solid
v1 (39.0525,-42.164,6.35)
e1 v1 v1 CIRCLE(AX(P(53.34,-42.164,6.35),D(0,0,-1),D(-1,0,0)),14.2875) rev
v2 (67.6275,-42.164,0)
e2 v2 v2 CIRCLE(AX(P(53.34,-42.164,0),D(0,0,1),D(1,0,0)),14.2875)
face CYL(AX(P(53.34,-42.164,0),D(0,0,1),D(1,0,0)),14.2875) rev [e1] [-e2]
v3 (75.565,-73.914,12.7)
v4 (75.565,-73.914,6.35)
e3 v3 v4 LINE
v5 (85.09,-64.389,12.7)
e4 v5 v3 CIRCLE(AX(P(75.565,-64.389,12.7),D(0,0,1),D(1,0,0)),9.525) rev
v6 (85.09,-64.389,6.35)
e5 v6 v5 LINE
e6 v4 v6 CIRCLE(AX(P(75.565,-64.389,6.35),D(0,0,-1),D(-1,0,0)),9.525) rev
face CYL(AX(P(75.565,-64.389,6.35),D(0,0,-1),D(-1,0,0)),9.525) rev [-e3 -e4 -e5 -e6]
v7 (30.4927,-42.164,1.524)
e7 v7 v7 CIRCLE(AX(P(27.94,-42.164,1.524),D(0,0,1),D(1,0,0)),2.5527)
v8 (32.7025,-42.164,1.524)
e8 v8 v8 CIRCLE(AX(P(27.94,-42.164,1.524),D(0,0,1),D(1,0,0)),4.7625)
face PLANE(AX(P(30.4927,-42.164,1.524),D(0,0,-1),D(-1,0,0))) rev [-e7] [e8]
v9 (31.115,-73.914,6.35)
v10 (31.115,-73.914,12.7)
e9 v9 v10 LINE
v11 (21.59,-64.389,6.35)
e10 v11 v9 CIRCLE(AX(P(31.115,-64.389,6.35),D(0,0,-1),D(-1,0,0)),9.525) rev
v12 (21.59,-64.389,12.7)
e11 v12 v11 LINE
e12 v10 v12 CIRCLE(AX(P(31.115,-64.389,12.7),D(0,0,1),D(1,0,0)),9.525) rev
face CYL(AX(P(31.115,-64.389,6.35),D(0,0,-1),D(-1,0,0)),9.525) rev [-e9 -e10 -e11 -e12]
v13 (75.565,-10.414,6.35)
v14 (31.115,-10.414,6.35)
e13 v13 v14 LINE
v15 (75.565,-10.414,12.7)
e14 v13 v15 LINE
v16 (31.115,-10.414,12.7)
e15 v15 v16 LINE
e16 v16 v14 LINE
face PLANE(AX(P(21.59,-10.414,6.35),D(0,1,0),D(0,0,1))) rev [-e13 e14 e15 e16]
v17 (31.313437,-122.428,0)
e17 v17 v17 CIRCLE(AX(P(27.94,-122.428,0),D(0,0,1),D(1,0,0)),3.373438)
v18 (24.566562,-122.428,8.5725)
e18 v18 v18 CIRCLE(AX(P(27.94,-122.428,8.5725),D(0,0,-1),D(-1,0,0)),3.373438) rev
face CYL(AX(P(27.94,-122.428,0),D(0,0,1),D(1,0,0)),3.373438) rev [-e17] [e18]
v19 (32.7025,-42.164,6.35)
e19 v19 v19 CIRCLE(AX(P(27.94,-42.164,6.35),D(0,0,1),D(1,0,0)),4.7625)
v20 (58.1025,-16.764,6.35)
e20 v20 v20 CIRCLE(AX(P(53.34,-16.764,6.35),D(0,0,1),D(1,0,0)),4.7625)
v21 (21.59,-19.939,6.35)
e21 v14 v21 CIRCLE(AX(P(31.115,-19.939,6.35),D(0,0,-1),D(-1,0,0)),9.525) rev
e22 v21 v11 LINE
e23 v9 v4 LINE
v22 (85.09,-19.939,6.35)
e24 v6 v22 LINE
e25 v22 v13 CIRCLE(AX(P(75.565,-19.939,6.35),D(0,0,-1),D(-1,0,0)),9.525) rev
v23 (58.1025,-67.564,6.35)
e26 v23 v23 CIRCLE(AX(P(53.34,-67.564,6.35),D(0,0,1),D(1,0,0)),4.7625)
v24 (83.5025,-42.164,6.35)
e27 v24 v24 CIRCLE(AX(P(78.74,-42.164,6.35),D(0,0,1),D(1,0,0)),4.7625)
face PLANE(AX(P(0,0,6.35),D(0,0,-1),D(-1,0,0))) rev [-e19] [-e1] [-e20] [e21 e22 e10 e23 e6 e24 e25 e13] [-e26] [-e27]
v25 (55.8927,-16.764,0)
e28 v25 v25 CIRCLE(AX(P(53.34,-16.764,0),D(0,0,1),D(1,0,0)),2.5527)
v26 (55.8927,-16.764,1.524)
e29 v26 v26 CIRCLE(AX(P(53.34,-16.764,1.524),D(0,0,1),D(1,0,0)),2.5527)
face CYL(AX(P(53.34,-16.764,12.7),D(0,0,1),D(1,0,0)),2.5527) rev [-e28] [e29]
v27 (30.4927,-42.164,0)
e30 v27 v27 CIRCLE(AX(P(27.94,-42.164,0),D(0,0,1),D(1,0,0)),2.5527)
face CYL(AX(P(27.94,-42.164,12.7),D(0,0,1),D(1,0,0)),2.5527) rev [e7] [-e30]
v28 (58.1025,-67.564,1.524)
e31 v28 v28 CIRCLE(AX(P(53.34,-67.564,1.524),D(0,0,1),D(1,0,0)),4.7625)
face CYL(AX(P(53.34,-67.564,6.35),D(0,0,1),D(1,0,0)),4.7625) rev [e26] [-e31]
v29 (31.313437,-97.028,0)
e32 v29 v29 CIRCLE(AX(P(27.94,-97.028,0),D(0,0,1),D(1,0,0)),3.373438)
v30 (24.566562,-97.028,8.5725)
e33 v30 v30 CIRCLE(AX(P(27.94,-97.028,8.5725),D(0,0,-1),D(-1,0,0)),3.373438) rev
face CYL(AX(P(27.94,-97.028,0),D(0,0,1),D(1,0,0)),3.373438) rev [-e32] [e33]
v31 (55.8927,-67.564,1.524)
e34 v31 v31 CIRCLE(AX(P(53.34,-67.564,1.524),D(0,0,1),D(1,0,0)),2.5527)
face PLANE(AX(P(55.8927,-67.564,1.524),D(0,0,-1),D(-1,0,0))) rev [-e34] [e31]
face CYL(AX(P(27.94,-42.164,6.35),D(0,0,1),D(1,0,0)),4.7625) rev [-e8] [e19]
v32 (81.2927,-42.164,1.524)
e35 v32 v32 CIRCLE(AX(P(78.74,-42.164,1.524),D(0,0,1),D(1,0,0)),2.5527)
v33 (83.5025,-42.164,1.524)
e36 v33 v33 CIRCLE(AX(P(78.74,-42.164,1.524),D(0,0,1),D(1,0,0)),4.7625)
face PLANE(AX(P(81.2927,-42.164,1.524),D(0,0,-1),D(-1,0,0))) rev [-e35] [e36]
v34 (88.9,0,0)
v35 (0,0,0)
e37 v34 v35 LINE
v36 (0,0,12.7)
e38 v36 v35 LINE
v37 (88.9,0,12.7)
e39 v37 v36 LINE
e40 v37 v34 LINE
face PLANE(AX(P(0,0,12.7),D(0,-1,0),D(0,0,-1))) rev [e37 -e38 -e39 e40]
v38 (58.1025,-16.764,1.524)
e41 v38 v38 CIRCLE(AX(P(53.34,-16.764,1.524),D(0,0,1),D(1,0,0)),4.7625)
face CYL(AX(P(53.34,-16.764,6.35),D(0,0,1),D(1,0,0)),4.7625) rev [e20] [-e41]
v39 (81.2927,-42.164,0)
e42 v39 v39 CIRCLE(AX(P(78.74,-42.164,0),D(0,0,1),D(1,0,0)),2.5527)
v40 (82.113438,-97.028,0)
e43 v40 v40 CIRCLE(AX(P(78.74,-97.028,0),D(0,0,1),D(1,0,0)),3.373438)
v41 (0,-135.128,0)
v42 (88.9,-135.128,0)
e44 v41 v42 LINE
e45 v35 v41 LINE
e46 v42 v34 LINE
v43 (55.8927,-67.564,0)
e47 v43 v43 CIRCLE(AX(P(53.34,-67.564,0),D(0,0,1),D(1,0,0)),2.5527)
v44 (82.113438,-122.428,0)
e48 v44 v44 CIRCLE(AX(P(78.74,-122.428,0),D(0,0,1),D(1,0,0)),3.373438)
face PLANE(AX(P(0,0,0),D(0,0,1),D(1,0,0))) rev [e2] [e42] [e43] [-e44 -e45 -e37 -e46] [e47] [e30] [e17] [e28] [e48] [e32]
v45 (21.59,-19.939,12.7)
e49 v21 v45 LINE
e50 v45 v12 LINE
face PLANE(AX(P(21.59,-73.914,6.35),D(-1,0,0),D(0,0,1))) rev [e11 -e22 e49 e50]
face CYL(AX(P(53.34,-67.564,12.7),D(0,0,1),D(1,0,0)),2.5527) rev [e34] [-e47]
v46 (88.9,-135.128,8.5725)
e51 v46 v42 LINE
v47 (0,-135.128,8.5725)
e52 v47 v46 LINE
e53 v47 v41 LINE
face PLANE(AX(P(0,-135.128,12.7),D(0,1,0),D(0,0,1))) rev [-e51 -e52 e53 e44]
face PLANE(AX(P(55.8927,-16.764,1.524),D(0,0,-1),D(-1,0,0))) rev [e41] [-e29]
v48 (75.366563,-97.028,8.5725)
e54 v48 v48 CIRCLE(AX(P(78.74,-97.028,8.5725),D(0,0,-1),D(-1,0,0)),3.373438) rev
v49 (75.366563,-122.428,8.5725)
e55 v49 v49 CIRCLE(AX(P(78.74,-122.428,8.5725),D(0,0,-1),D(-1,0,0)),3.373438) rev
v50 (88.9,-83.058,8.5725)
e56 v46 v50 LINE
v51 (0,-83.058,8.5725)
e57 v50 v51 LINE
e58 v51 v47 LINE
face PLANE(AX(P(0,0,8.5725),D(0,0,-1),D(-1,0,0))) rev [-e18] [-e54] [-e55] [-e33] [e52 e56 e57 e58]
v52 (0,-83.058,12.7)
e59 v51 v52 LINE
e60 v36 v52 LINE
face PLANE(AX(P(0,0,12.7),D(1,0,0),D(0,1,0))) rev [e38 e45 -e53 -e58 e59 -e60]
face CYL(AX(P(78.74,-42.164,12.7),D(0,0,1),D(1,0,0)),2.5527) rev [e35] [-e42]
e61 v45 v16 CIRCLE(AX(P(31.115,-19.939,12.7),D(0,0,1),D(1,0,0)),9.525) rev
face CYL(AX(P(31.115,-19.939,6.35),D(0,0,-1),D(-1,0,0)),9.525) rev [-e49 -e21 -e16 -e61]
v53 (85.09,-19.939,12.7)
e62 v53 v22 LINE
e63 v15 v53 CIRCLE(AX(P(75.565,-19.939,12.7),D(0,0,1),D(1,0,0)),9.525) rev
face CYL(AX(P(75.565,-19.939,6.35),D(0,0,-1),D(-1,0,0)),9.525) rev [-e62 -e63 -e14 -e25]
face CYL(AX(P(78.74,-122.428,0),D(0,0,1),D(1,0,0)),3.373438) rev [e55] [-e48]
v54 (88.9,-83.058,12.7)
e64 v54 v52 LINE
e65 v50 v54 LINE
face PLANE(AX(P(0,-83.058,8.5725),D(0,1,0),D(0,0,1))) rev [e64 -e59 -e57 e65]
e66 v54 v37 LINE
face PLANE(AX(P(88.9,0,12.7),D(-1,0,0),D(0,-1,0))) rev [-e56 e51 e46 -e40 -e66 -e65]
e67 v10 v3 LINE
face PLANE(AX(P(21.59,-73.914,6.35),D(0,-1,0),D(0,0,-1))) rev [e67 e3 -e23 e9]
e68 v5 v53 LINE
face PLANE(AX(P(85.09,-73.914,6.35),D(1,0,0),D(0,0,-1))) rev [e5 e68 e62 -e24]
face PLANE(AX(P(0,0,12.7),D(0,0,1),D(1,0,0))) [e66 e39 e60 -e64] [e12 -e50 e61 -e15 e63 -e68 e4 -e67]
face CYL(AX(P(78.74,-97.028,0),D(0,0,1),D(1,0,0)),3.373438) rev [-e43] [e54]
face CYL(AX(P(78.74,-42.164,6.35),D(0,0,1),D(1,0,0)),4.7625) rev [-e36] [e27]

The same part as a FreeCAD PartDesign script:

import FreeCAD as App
import Part
import Sketcher

V = App.Vector
Q = App.Units.Quantity


def edges_at(feature, points):
    """Names of the edges that pass closest to the given points."""
    edges = feature.Shape.Edges
    near = lambda p: min(range(len(edges)), key=lambda i: edges[i].distToShape(Part.Vertex(*p))[0])
    return sorted({f"Edge{near(p) + 1}" for p in points})


def add_polygon(sketch, points):
    """Adds a closed chain of lines whose ends are joined by coincident constraints."""
    first, n = sketch.GeometryCount, len(points)
    for a, b in zip(points, points[1:] + points[:1]):
        sketch.addGeometry(Part.LineSegment(App.Vector(*a, 0), App.Vector(*b, 0)), False)
    for i in range(n):
        sketch.addConstraint(Sketcher.Constraint("Coincident", first + i, 2, first + (i + 1) % n, 1))

doc = App.newDocument("Part")
body = doc.addObject("PartDesign::Body", "Body")

sketch1 = doc.addObject("Sketcher::SketchObject", "Sketch")
body.addObject(sketch1)
sketch1.AttachmentSupport = (doc.XY_Plane, [""])
sketch1.MapMode = "FlatFace"
add_polygon(sketch1, [(0, 0), (0, -135.128), (88.9, -135.128), (88.9, 0)])
sketch1.addConstraint([
    Sketcher.Constraint("Vertical", 0),
    Sketcher.Constraint("Horizontal", 1),
    Sketcher.Constraint("Vertical", 2),
    Sketcher.Constraint("Horizontal", 3),
    Sketcher.Constraint("Coincident", 3, 2, -1, 1),
    Sketcher.Constraint("DistanceX", 1, 1, 1, 2, Q("3.5 in")),
    Sketcher.Constraint("DistanceY", 0, 2, 0, 1, Q("5.32 in")),
])
pad1 = doc.addObject("PartDesign::Pad", "Pad")
body.addObject(pad1)
pad1.Profile = sketch1
pad1.Length = Q("0.5 in")

sketch2 = doc.addObject("Sketcher::SketchObject", "Sketch001")
body.addObject(sketch2)
sketch2.AttachmentSupport = (doc.XY_Plane, [""])
sketch2.MapMode = "FlatFace"
sketch2.AttachmentOffset = App.Placement(V(0, 0, 0.5 * 25.4), App.Rotation())
sketch2.addGeometry(Part.Circle(V(53.34, -42.164, 0), V(0, 0, 1), 14.2875), False)
sketch2.addConstraint([
    Sketcher.Constraint("Diameter", 0, Q("1.125 in")),
    Sketcher.Constraint("DistanceX", -1, 1, 0, 3, Q("2.1 in")),
    Sketcher.Constraint("DistanceY", 0, 3, -1, 1, Q("1.66 in")),
])
pocket1 = doc.addObject("PartDesign::Pocket", "Pocket")
body.addObject(pocket1)
pocket1.Profile = sketch2
pocket1.Type = "ThroughAll"

sketch3 = doc.addObject("Sketcher::SketchObject", "Sketch002")
body.addObject(sketch3)
sketch3.AttachmentSupport = (doc.XY_Plane, [""])
sketch3.MapMode = "FlatFace"
sketch3.AttachmentOffset = App.Placement(V(0, 0, 0.5 * 25.4), App.Rotation())
sketch3.addGeometry([
    Part.Circle(V(53.34, -16.764, 0), V(0, 0, 1), 2.5527),
    Part.Circle(V(53.34, -67.564, 0), V(0, 0, 1), 2.5527),
    Part.Circle(V(27.94, -42.164, 0), V(0, 0, 1), 2.5527),
    Part.Circle(V(78.74, -42.164, 0), V(0, 0, 1), 2.5527),
], False)
sketch3.addConstraint([
    Sketcher.Constraint("Equal", 0, 1),
    Sketcher.Constraint("Equal", 1, 2),
    Sketcher.Constraint("Equal", 2, 3),
    Sketcher.Constraint("Horizontal", 2, 3, 3, 3),
    Sketcher.Constraint("Vertical", 0, 3, 1, 3),
    Sketcher.Constraint("Diameter", 0, Q("0.201 in")),
    Sketcher.Constraint("DistanceY", 1, 3, 0, 3, Q("2 in")),
    Sketcher.Constraint("DistanceX", 2, 3, 1, 3, Q("1 in")),
    Sketcher.Constraint("DistanceY", 1, 3, 2, 3, Q("1 in")),
    Sketcher.Constraint("DistanceX", 1, 3, 3, 3, Q("1 in")),
    Sketcher.Constraint("DistanceX", -1, 1, 0, 3, Q("2.1 in")),
    Sketcher.Constraint("DistanceY", 0, 3, -1, 1, Q("0.66 in")),
])
doc.recompute()
hole = doc.addObject("PartDesign::Hole", "Hole")
body.addObject(hole)
hole.Profile = sketch3
hole.ThreadType = "None"
hole.Diameter = Q("0.201 in")
hole.DepthType = "ThroughAll"
hole.HoleCutType = "Counterbore"
hole.HoleCutDiameter = Q("0.375 in")
hole.HoleCutDepth = Q("0.19 in")

sketch4 = doc.addObject("Sketcher::SketchObject", "Sketch003")
body.addObject(sketch4)
sketch4.AttachmentSupport = (doc.XY_Plane, [""])
sketch4.MapMode = "FlatFace"
sketch4.AttachmentOffset = App.Placement(V(0, 0, 0.5 * 25.4), App.Rotation())
sketch4.addGeometry([
    Part.Circle(V(27.94, -122.428, 0), V(0, 0, 1), 3.373438),
    Part.Circle(V(78.74, -122.428, 0), V(0, 0, 1), 3.373438),
    Part.Circle(V(27.94, -97.028, 0), V(0, 0, 1), 3.373438),
    Part.Circle(V(78.74, -97.028, 0), V(0, 0, 1), 3.373438),
], False)
sketch4.addConstraint([
    Sketcher.Constraint("Equal", 0, 1),
    Sketcher.Constraint("Equal", 1, 2),
    Sketcher.Constraint("Equal", 2, 3),
    Sketcher.Constraint("Horizontal", 0, 3, 1, 3),
    Sketcher.Constraint("Horizontal", 2, 3, 3, 3),
    Sketcher.Constraint("Vertical", 0, 3, 2, 3),
    Sketcher.Constraint("Vertical", 1, 3, 3, 3),
    Sketcher.Constraint("Diameter", 0, Q("0.265625 in")),
    Sketcher.Constraint("DistanceX", 0, 3, 1, 3, Q("2 in")),
    Sketcher.Constraint("DistanceY", 0, 3, 2, 3, Q("1 in")),
    Sketcher.Constraint("DistanceX", -1, 1, 0, 3, Q("1.1 in")),
    Sketcher.Constraint("DistanceY", 0, 3, -1, 1, Q("4.82 in")),
])
pocket2 = doc.addObject("PartDesign::Pocket", "Pocket001")
body.addObject(pocket2)
pocket2.Profile = sketch4
pocket2.Type = "ThroughAll"

sketch5 = doc.addObject("Sketcher::SketchObject", "Sketch004")
body.addObject(sketch5)
sketch5.AttachmentSupport = (doc.XY_Plane, [""])
sketch5.MapMode = "FlatFace"
sketch5.AttachmentOffset = App.Placement(V(0, 0, 0.5 * 25.4), App.Rotation())
add_polygon(sketch5, [(21.59, -10.414), (21.59, -73.914), (85.09, -73.914), (85.09, -10.414)])
sketch5.addConstraint([
    Sketcher.Constraint("Vertical", 0),
    Sketcher.Constraint("Horizontal", 1),
    Sketcher.Constraint("Vertical", 2),
    Sketcher.Constraint("Horizontal", 3),
    Sketcher.Constraint("Equal", 3, 0),
    Sketcher.Constraint("DistanceX", 1, 1, 1, 2, Q("2.5 in")),
    Sketcher.Constraint("DistanceX", -1, 1, 0, 2, Q("0.85 in")),
    Sketcher.Constraint("DistanceY", 0, 2, -1, 1, Q("2.91 in")),
])
pocket3 = doc.addObject("PartDesign::Pocket", "Pocket002")
body.addObject(pocket3)
pocket3.Profile = sketch5
pocket3.Length = Q("0.25 in")
doc.recompute()

fillet = doc.addObject("PartDesign::Fillet", "Fillet")
body.addObject(fillet)
fillet.Base = (pocket3, edges_at(pocket3, [
    (85.09, -10.414, 9.525),
    (85.09, -73.914, 9.525),
    (21.59, -73.914, 9.525),
    (21.59, -10.414, 9.525),
]))
fillet.Radius = Q("0.375 in")

sketch6 = doc.addObject("Sketcher::SketchObject", "Sketch005")
body.addObject(sketch6)
sketch6.AttachmentSupport = (doc.XY_Plane, [""])
sketch6.MapMode = "FlatFace"
sketch6.AttachmentOffset = App.Placement(V(0, 0, 0.5 * 25.4), App.Rotation())
add_polygon(sketch6, [(0, -83.058), (0, -135.128), (88.9, -135.128), (88.9, -83.058)])
sketch6.addConstraint([
    Sketcher.Constraint("Vertical", 0),
    Sketcher.Constraint("Horizontal", 1),
    Sketcher.Constraint("Vertical", 2),
    Sketcher.Constraint("Horizontal", 3),
    Sketcher.Constraint("PointOnObject", 0, 2, -2),
    Sketcher.Constraint("DistanceX", 1, 1, 1, 2, Q("3.5 in")),
    Sketcher.Constraint("DistanceY", 0, 2, 0, 1, Q("2.05 in")),
    Sketcher.Constraint("DistanceY", 0, 2, -1, 1, Q("5.32 in")),
])
pocket4 = doc.addObject("PartDesign::Pocket", "Pocket003")
body.addObject(pocket4)
pocket4.Profile = sketch6
pocket4.Length = Q("0.1625 in")

sketch7 = doc.addObject("Sketcher::SketchObject", "Sketch006")
body.addObject(sketch7)
sketch7.AttachmentSupport = (doc.XY_Plane, [""])
sketch7.MapMode = "FlatFace"
sketch7.AttachmentOffset = App.Placement(V(0, 0, 0.25 * 25.4), App.Rotation())
sketch7.addGeometry([
    Part.Circle(V(53.34, -16.764, 0), V(0, 0, 1), 2.5527),
    Part.Circle(V(78.74, -42.164, 0), V(0, 0, 1), 2.5527),
    Part.Circle(V(53.34, -67.564, 0), V(0, 0, 1), 2.5527),
    Part.Circle(V(27.94, -42.164, 0), V(0, 0, 1), 2.5527),
], False)
sketch7.addConstraint([
    Sketcher.Constraint("Equal", 0, 1),
    Sketcher.Constraint("Equal", 1, 2),
    Sketcher.Constraint("Equal", 2, 3),
    Sketcher.Constraint("Horizontal", 1, 3, 3, 3),
    Sketcher.Constraint("Vertical", 0, 3, 2, 3),
    Sketcher.Constraint("Diameter", 0, Q("0.201 in")),
    Sketcher.Constraint("DistanceX", 0, 3, 1, 3, Q("1 in")),
    Sketcher.Constraint("DistanceY", 1, 3, 0, 3, Q("1 in")),
    Sketcher.Constraint("DistanceY", 2, 3, 1, 3, Q("1 in")),
    Sketcher.Constraint("DistanceX", 3, 3, 2, 3, Q("1 in")),
    Sketcher.Constraint("DistanceX", -1, 1, 0, 3, Q("2.1 in")),
    Sketcher.Constraint("DistanceY", 0, 3, -1, 1, Q("0.66 in")),
])
doc.recompute()
hole2 = doc.addObject("PartDesign::Hole", "Hole001")
body.addObject(hole2)
hole2.Profile = sketch7
hole2.ThreadType = "None"
hole2.Diameter = Q("0.201 in")
hole2.DepthType = "Dimension"
hole2.Depth = Q("0.9 in")
hole2.DrillPoint = "Angled"
hole2.DrillPointAngle = 118
hole2.HoleCutType = "Counterbore"
hole2.HoleCutDiameter = Q("0.375 in")
hole2.HoleCutDepth = Q("0.19 in")

doc.recompute()
